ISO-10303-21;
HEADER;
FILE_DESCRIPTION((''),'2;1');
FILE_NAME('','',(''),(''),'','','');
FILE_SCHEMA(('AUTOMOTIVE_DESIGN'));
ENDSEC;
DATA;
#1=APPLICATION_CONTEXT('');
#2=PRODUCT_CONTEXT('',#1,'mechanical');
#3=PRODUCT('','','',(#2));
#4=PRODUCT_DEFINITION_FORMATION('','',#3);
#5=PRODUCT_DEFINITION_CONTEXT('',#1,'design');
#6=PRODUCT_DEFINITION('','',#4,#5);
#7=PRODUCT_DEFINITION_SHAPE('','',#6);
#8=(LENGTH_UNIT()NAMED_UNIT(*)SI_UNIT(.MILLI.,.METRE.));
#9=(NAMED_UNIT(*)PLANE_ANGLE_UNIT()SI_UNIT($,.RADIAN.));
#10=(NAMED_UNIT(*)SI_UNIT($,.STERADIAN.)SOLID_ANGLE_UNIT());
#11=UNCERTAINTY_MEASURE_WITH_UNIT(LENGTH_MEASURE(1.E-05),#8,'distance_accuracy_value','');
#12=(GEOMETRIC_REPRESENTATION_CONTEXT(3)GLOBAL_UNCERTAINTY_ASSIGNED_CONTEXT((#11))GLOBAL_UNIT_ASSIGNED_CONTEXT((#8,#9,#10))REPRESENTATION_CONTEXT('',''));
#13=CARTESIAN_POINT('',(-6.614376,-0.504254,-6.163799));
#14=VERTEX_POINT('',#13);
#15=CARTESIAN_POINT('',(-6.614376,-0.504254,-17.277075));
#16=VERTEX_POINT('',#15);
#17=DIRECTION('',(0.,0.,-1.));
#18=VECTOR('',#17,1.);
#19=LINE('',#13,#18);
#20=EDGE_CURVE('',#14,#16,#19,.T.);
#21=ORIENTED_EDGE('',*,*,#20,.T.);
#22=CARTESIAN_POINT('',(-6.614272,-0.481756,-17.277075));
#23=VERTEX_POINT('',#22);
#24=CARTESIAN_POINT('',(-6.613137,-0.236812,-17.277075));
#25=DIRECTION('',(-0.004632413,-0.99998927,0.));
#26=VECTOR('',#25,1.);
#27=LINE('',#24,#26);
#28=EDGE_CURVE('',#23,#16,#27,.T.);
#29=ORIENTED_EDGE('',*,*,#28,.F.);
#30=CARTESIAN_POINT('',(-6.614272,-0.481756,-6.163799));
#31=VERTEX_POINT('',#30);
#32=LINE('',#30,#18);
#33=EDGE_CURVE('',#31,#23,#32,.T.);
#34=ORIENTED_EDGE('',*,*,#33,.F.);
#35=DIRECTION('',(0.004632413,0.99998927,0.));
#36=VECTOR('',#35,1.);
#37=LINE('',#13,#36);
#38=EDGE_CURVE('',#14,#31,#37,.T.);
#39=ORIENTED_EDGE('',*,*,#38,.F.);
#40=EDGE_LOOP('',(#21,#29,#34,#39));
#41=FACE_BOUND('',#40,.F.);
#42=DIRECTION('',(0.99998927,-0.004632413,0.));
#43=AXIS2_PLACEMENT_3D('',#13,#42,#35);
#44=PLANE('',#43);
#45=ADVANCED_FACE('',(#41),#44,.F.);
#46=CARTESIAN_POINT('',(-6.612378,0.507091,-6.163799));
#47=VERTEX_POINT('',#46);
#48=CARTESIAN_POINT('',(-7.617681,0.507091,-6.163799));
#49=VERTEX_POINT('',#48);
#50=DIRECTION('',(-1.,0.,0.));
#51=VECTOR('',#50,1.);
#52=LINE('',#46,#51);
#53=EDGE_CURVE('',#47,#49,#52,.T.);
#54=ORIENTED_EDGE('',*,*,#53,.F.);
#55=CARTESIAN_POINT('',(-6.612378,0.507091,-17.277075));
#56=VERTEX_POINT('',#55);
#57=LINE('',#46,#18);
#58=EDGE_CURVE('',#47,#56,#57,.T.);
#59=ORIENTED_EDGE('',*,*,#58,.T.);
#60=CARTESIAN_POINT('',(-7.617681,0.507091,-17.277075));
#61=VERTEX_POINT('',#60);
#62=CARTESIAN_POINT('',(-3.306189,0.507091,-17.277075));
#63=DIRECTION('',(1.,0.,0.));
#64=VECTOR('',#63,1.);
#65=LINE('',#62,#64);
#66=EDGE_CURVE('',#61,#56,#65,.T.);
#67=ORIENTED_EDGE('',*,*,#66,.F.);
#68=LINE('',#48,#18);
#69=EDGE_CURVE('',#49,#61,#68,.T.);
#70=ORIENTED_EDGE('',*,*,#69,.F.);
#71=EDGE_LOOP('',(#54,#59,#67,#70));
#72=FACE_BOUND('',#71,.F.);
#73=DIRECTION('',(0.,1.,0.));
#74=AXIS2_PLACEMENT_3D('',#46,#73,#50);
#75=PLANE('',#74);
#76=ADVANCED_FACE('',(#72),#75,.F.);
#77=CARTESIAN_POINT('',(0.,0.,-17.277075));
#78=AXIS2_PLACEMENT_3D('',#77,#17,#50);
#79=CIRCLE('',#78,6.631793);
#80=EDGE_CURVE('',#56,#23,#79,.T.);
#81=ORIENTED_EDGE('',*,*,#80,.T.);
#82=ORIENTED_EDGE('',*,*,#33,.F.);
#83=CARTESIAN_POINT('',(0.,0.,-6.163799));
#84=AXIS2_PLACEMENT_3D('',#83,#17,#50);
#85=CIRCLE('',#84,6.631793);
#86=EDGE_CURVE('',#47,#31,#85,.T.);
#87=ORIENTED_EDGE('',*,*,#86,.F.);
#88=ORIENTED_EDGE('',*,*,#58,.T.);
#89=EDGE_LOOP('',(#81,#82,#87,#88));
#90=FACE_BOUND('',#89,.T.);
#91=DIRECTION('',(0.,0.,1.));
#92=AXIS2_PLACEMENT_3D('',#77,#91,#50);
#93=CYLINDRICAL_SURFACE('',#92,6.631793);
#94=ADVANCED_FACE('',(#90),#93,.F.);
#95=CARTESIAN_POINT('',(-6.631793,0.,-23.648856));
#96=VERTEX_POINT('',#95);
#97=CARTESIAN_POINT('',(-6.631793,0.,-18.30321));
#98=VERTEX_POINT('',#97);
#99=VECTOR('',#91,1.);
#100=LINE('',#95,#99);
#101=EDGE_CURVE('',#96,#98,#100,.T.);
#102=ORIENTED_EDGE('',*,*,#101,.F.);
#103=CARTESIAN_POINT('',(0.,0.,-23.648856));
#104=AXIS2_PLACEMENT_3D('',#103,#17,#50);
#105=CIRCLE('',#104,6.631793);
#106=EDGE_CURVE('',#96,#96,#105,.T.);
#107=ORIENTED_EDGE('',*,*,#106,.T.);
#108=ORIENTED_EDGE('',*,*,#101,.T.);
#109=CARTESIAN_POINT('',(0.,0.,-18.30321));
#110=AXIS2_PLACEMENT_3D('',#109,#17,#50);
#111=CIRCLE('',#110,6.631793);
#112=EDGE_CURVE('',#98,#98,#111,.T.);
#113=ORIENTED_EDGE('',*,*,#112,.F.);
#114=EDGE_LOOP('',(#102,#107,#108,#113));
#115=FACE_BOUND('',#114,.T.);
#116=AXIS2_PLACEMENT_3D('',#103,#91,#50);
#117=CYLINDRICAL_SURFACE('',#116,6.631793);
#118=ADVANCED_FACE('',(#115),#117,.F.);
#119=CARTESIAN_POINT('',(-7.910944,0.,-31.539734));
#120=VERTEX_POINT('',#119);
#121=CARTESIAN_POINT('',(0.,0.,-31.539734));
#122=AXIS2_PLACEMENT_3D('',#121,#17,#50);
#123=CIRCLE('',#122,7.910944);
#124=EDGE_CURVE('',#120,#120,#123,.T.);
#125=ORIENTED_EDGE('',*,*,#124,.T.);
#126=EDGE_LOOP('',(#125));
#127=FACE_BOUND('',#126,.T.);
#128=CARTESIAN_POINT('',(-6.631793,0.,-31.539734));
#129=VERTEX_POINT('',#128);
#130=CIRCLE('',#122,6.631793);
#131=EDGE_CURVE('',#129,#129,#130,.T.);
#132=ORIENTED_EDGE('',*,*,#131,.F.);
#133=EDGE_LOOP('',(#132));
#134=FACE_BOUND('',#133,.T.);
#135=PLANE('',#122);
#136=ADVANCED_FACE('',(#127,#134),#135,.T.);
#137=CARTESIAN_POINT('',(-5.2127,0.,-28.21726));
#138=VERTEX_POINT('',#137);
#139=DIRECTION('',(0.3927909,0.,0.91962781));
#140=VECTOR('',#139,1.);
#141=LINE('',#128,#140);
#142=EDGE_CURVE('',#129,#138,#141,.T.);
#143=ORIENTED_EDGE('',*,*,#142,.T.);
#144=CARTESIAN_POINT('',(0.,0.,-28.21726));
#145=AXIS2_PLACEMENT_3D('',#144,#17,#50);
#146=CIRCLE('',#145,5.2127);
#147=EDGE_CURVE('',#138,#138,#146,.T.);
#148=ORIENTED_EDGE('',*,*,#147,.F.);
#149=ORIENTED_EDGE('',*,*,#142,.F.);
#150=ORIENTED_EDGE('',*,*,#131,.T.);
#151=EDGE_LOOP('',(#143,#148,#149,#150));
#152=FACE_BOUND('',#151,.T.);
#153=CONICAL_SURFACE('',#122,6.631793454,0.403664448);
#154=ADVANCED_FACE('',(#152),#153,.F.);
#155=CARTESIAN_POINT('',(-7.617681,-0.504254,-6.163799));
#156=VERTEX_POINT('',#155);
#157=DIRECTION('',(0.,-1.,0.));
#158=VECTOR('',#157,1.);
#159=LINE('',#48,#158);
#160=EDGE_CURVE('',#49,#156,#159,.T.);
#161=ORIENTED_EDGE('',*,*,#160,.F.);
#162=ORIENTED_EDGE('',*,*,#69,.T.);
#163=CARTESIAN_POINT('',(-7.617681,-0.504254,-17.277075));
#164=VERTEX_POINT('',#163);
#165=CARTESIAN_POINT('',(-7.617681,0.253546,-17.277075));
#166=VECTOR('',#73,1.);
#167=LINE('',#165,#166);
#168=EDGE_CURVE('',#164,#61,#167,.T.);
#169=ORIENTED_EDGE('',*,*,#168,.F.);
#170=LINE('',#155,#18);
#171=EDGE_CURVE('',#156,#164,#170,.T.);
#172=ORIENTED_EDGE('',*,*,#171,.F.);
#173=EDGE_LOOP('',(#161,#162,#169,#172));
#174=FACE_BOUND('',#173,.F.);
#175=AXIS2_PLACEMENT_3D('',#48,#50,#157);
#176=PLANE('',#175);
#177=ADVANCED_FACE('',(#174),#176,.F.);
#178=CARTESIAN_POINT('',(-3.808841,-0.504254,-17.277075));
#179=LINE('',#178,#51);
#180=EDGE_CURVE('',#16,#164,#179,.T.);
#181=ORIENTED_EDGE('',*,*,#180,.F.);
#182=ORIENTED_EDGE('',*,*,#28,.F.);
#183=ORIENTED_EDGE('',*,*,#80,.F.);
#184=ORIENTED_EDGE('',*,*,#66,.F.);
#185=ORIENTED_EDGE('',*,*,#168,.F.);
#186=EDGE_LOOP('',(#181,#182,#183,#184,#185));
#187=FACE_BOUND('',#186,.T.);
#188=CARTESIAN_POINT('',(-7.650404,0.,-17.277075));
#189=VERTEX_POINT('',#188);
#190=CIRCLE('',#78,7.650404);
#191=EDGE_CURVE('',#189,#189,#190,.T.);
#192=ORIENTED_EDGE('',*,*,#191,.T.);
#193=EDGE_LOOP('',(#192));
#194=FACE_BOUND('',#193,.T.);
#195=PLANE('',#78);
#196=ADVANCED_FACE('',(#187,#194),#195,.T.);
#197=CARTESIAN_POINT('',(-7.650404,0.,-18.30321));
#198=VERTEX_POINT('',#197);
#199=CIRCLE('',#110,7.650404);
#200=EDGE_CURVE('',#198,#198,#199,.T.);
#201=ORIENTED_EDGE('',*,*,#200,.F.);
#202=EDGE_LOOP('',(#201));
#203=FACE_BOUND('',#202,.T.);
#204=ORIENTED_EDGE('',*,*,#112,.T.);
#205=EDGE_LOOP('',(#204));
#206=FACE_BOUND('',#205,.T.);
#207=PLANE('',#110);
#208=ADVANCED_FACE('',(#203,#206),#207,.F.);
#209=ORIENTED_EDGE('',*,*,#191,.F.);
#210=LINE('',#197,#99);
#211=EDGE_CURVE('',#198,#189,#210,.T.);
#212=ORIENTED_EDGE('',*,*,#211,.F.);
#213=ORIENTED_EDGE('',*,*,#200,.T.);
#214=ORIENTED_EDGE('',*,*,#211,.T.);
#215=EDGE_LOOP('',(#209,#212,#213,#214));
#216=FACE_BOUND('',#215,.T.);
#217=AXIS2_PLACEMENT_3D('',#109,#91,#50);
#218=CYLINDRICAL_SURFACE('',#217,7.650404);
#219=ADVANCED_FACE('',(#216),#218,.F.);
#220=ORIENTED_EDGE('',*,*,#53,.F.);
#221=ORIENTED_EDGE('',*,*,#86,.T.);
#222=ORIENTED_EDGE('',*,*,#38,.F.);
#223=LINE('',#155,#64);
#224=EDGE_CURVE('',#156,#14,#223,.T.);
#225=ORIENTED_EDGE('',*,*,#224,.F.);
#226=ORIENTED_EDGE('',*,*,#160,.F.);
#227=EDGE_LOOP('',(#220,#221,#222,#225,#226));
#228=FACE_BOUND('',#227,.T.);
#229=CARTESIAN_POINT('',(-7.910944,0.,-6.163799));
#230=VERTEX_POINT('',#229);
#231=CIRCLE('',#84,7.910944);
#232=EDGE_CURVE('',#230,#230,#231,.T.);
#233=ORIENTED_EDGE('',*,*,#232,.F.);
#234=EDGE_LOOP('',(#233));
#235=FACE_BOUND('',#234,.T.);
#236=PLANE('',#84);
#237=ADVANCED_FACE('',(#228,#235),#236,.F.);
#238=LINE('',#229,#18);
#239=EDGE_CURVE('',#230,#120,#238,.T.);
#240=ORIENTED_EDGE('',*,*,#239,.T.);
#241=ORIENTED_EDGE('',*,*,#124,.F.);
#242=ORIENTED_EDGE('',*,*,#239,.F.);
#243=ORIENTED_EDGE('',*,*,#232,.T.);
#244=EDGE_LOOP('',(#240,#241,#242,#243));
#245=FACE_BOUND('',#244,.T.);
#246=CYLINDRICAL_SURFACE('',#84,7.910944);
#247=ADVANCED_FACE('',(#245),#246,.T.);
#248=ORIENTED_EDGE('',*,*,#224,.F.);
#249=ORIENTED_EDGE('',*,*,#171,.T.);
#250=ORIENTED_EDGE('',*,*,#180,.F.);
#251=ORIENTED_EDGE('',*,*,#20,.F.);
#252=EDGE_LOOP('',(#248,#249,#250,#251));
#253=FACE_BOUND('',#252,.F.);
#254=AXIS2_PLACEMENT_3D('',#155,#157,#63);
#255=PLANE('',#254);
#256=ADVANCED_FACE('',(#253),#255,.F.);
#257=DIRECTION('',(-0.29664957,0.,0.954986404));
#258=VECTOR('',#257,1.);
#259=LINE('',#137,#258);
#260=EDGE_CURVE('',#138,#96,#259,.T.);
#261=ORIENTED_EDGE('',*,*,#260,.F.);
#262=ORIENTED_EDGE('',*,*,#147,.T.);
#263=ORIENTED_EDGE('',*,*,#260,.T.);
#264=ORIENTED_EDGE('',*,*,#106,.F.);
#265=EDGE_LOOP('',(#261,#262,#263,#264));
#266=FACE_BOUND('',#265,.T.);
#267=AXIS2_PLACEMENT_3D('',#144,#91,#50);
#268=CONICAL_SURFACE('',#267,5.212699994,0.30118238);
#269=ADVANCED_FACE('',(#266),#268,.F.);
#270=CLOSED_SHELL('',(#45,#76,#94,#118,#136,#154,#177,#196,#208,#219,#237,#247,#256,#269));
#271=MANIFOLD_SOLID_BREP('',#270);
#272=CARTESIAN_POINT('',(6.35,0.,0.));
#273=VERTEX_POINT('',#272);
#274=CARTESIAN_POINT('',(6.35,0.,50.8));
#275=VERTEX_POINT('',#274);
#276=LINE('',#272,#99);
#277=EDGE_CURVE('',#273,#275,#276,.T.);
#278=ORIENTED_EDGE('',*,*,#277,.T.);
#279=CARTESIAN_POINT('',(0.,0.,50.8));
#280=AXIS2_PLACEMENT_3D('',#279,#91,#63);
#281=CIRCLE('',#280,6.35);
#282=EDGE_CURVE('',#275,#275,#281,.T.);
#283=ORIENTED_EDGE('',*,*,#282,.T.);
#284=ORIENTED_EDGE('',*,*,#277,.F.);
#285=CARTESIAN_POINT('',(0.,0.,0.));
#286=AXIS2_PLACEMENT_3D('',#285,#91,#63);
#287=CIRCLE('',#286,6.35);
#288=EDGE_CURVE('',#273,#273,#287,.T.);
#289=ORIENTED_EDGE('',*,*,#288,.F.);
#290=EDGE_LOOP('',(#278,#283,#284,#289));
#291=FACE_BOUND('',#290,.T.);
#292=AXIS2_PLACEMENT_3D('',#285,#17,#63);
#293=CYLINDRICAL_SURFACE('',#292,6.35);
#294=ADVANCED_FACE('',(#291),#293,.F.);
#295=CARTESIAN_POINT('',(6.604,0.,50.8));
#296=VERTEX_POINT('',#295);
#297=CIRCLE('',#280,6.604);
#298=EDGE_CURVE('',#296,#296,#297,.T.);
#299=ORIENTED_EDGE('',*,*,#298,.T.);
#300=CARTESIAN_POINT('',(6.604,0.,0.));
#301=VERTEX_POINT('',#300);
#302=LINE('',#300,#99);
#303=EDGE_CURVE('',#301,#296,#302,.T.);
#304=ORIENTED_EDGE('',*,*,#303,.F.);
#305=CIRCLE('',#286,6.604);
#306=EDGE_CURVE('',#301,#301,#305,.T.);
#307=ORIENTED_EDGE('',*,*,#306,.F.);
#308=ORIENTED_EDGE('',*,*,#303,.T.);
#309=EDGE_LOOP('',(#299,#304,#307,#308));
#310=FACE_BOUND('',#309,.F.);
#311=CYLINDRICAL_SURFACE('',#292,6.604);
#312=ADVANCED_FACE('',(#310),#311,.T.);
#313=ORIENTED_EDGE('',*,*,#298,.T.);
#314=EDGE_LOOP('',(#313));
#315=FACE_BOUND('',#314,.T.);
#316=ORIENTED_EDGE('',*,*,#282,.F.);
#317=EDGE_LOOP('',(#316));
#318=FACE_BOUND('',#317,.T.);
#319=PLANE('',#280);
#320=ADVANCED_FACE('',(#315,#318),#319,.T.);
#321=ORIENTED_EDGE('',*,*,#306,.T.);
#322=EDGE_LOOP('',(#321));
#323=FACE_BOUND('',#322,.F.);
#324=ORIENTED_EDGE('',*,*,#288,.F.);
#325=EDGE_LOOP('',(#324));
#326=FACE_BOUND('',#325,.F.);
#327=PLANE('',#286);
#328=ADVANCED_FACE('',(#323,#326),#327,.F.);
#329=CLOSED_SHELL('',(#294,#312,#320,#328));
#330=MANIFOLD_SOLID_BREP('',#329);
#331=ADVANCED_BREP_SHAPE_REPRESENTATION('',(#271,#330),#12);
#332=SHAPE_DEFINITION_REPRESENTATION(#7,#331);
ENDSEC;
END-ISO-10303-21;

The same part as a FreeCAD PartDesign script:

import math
import FreeCAD as App
import Part
import Sketcher
from FreeCAD import Vector
Q = App.Units.Quantity


def add_polygon(sketch, points):
    """Adds a closed chain of lines whose ends are joined by coincident constraints."""
    first, n = sketch.GeometryCount, len(points)
    for a, b in zip(points, points[1:] + points[:1]):
        sketch.addGeometry(Part.LineSegment(App.Vector(*a, 0), App.Vector(*b, 0)), False)
    for i in range(n):
        sketch.addConstraint(Sketcher.Constraint("Coincident", first + i, 2, first + (i + 1) % n, 1))

doc = App.newDocument("Part")
body = doc.addObject("PartDesign::Body", "Body")

# Sketch on XZ plane
sketch1 = doc.addObject("Sketcher::SketchObject", "Sketch")
body.addObject(sketch1)
sketch1.AttachmentSupport = (doc.XZ_Plane, [""])
sketch1.MapMode = "FlatFace"
add_polygon(sketch1, [(-6.631793, -17.277075), (-6.631793, -6.163799), (-7.910944, -6.163799), (-7.910944, -31.539734), (-6.631793, -31.539734), (-5.2127, -28.21726), (-6.631793, -23.648856), (-6.631793, -18.30321), (-7.650404, -18.30321), (-7.650404, -17.277075)])  # lines 0-9
sketch1.addConstraint([
    Sketcher.Constraint("Vertical", 0),
    Sketcher.Constraint("Horizontal", 1),
    Sketcher.Constraint("Vertical", 2),
    Sketcher.Constraint("Horizontal", 3),
    Sketcher.Constraint("Vertical", 6),
    Sketcher.Constraint("Horizontal", 7),
    Sketcher.Constraint("Vertical", 8),
    Sketcher.Constraint("Horizontal", 9),
    Sketcher.Constraint("Vertical", 0, 2, 3, 2),
    Sketcher.Constraint("Vertical", 3, 2, 5, 2),
    Sketcher.Constraint("DistanceY", 8, 2, -1, 1, Q("0.6801998 in")),
    Sketcher.Constraint("DistanceX", 1, 2, 1, 1, 1.27915),
    Sketcher.Constraint("DistanceX", 7, 2, 7, 1, 1.01861),
    Sketcher.Constraint("DistanceY", 0, 2, -1, 1, 6.163799),
    Sketcher.Constraint("DistanceX", 4, 2, -1, 1, 5.2127),
    Sketcher.Constraint("DistanceY", 2, 2, 2, 1, 25.375935),
    Sketcher.Constraint("DistanceY", 6, 1, 6, 2, 5.345646),
    Sketcher.Constraint("DistanceY", 8, 1, 8, 2, 1.026135),
    Sketcher.Constraint("DistanceY", 4, 2, -1, 1, 28.21726),
    Sketcher.Constraint("Distance", 4, 3.612847),
])
revolution = doc.addObject("PartDesign::Revolution", "Revolution")
body.addObject(revolution)
revolution.Profile = sketch1
revolution.ReferenceAxis = (sketch1, ["V_Axis"])
revolution.Angle = 360

# Sketch on XY plane
sketch2 = doc.addObject("Sketcher::SketchObject", "Sketch001")
body.addObject(sketch2)
sketch2.AttachmentSupport = (doc.XY_Plane, [""])
sketch2.MapMode = "FlatFace"
sketch2.AttachmentOffset = App.Placement(Vector(0, 0, -6.163799), App.Rotation())
sketch2.addGeometry([
    Part.ArcOfCircle(Part.Circle(Vector(0, 0, 0), Vector(0, 0, 1), 6.631793), math.radians(175.614674), math.radians(184.16583)),  # 0
    Part.LineSegment(Vector(-6.612378, 0.507091, 0), Vector(-7.617681, 0.507091, 0)),  # 1
    Part.LineSegment(Vector(-7.617681, 0.507091, 0), Vector(-7.617681, -0.504254, 0)),  # 2
    Part.LineSegment(Vector(-7.617681, -0.504254, 0), Vector(-6.614376, -0.504254, 0)),  # 3
    Part.LineSegment(Vector(-6.614376, -0.504254, 0), Vector(-6.614272, -0.481756, 0)),  # 4
], False)
sketch2.addConstraint([
    Sketcher.Constraint("Coincident", 0, 1, 1, 1),
    Sketcher.Constraint("Coincident", 1, 2, 2, 1),
    Sketcher.Constraint("Coincident", 2, 2, 3, 1),
    Sketcher.Constraint("Coincident", 3, 2, 4, 1),
    Sketcher.Constraint("Coincident", 4, 2, 0, 2),
    Sketcher.Constraint("Horizontal", 1),
    Sketcher.Constraint("Vertical", 2),
    Sketcher.Constraint("Horizontal", 3),
    Sketcher.Constraint("Coincident", 0, 3, -1, 1),
    Sketcher.Constraint("DistanceX", 3, 1, 3, 2, Q("0.0395002 in")),
    Sketcher.Constraint("Radius", 0, 6.631793),
    Sketcher.Constraint("Distance", 4, 0.022498),
    Sketcher.Constraint("DistanceX", 3, 2, 0, 1, 0.001998),
    Sketcher.Constraint("DistanceY", 2, 2, 2, 1, 1.011345),
    Sketcher.Constraint("DistanceX", 0, 1, -1, 1, 6.612378),
])
pocket1 = doc.addObject("PartDesign::Pocket", "Pocket")
body.addObject(pocket1)
pocket1.Profile = sketch2
pocket1.Length = Q("0.477 in")
body2 = doc.addObject("PartDesign::Body", "Body001")

# Sketch on XY plane
sketch3 = doc.addObject("Sketcher::SketchObject", "Sketch002")
body2.addObject(sketch3)
sketch3.AttachmentSupport = (doc.getObject("XY_Plane001"), [""])
sketch3.MapMode = "FlatFace"
sketch3.addGeometry([
    Part.Circle(Vector(0, 0, 0), Vector(0, 0, 1), 6.604),
    Part.Circle(Vector(0, 0, 0), Vector(0, 0, 1), 6.35),
], False)
sketch3.addConstraint([
    Sketcher.Constraint("Coincident", 0, 3, -1, 1),
    Sketcher.Constraint("Coincident", 1, 3, -1, 1),
    Sketcher.Constraint("Diameter", 1, Q("0.5 in")),
    Sketcher.Constraint("Diameter", 0, Q("0.52 in")),
])
pad1 = doc.addObject("PartDesign::Pad", "Pad")
body2.addObject(pad1)
pad1.Profile = sketch3
pad1.Length = Q("2 in")

doc.recompute()
